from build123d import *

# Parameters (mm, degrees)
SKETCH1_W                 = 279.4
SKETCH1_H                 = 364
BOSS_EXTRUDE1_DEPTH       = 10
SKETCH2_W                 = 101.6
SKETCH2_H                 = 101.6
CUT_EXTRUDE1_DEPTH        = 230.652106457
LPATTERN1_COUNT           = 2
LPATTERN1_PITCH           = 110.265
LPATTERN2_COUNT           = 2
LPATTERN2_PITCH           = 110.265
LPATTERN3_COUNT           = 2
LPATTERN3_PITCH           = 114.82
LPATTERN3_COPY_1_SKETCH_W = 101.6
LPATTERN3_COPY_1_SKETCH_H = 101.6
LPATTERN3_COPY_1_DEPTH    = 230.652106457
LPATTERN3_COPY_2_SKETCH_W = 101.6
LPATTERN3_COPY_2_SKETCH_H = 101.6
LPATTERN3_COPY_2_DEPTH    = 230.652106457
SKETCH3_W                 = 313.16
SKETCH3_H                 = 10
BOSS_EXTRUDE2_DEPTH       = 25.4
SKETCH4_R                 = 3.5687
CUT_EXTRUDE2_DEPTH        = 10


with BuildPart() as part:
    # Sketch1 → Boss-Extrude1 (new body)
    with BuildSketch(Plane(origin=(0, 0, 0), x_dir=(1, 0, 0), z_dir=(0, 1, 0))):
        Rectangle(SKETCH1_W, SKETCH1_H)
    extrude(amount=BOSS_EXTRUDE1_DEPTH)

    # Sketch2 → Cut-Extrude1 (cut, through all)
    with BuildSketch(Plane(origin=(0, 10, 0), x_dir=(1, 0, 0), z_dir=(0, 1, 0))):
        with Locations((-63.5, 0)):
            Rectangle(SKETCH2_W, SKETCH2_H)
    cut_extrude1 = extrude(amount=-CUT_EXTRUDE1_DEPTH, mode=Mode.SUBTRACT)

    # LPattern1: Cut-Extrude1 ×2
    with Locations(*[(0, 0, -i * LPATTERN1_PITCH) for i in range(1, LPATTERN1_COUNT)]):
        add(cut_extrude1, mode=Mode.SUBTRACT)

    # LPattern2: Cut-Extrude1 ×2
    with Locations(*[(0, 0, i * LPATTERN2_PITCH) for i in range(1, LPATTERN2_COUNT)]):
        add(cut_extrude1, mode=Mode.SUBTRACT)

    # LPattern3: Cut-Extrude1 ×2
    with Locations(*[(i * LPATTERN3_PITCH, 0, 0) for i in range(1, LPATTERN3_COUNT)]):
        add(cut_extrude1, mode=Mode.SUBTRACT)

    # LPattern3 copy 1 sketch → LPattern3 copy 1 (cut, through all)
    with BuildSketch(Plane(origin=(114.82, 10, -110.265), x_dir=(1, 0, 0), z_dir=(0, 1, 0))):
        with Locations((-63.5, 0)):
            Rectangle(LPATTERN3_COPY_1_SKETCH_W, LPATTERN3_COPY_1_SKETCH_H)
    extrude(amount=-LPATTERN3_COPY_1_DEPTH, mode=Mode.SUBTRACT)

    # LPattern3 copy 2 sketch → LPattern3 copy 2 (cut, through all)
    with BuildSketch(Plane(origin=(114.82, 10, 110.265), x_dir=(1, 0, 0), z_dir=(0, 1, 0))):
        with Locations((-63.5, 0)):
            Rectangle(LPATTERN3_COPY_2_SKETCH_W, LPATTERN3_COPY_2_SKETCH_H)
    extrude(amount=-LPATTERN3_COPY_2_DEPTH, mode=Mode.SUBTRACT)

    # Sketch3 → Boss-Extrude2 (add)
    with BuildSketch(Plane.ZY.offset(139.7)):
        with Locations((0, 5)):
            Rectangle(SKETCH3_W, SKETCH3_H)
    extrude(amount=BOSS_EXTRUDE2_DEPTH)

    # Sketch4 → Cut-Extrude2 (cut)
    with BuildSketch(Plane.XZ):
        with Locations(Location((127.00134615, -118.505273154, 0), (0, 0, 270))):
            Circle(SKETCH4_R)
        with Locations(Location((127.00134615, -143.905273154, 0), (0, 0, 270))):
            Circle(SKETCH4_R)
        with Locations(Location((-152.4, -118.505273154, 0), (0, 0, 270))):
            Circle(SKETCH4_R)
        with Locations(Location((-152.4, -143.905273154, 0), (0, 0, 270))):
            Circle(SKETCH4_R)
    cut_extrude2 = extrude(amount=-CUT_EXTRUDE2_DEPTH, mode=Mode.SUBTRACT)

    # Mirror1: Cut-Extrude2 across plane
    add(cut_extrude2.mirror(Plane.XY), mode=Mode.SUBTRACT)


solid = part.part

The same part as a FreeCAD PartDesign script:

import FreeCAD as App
import Part
import Sketcher
Q = App.Units.Quantity

doc = App.newDocument("Part")
params = doc.addObject("Spreadsheet::Sheet", "Params")
for row, (alias, value) in enumerate([
    ("sketch1_width", "11 in"),
    ("pad1_length", "10 mm"),
    ("sketch2_width", "4 in"),
    ("linearpattern_pitch", "110.265 mm"),
    ("linearpattern2_pitch", "110.265 mm"),
    ("linearpattern3_pitch", "114.82 mm"),
    ("sketch3_width", "4 in"),
    ("sketch4_width", "4 in"),
    ("pad2_length", "1 in"),
    ("sketch6_diameter", "0.281 in"),
    ("pocket4_length", "10 mm"),
], start=1):
    params.set(f"A{row}", alias)
    params.set(f"B{row}", "=" + value)
    params.setAlias(f"B{row}", alias)

body = doc.addObject("PartDesign::Body", "Body")

sketch1 = body.newObject("Sketcher::SketchObject", "Sketch")
sketch1.AttachmentSupport = (doc.getObject("XZ_Plane"), [""])
sketch1.MapMode = "FlatFace"
sketch1.addGeometry([
    Part.LineSegment(App.Vector(-140, -182, 0), App.Vector(-140, 182, 0)),
    Part.LineSegment(App.Vector(-140, 182, 0), App.Vector(140, 182, 0)),
    Part.LineSegment(App.Vector(140, 182, 0), App.Vector(140, -182, 0)),
    Part.LineSegment(App.Vector(140, -182, 0), App.Vector(-140, -182, 0)),
], False)
sketch1.addConstraint([
    Sketcher.Constraint("Coincident", 0, 2, 1, 1),
    Sketcher.Constraint("Coincident", 1, 2, 2, 1),
    Sketcher.Constraint("Coincident", 2, 2, 3, 1),
    Sketcher.Constraint("Coincident", 3, 2, 0, 1),
    Sketcher.Constraint("Vertical", 0),
    Sketcher.Constraint("Horizontal", 1),
    Sketcher.Constraint("Vertical", 2),
    Sketcher.Constraint("Horizontal", 3),
    Sketcher.Constraint("Symmetric", 0, 2, 2, 2, -1, 1),
    Sketcher.Constraint("DistanceX", 1, 1, 1, 2, Q("11 in")),
    Sketcher.Constraint("DistanceY", 0, 1, 0, 2, 364.0),
])
sketch1.setExpression("Constraints[9]", "Params.sketch1_width")
pad1 = body.newObject("PartDesign::Pad", "Pad")
pad1.Profile = sketch1
pad1.setExpression("Length", "Params.pad1_length")
pad1.Reversed = True

sketch2 = body.newObject("Sketcher::SketchObject", "Sketch001")
sketch2.AttachmentSupport = (doc.getObject("XZ_Plane"), [""])
sketch2.MapMode = "FlatFace"
sketch2.AttachmentOffset = App.Placement(App.Vector(0, 0, -10), App.Rotation())
sketch2.addGeometry([
    Part.LineSegment(App.Vector(-114, -51, 0), App.Vector(-114, 51, 0)),
    Part.LineSegment(App.Vector(-114, 51, 0), App.Vector(-13, 51, 0)),
    Part.LineSegment(App.Vector(-13, 51, 0), App.Vector(-13, -51, 0)),
    Part.LineSegment(App.Vector(-13, -51, 0), App.Vector(-114, -51, 0)),
], False)
sketch2.addConstraint([
    Sketcher.Constraint("Coincident", 0, 2, 1, 1),
    Sketcher.Constraint("Coincident", 1, 2, 2, 1),
    Sketcher.Constraint("Coincident", 2, 2, 3, 1),
    Sketcher.Constraint("Coincident", 3, 2, 0, 1),
    Sketcher.Constraint("Vertical", 0),
    Sketcher.Constraint("Horizontal", 1),
    Sketcher.Constraint("Vertical", 2),
    Sketcher.Constraint("Horizontal", 3),
    Sketcher.Constraint("Equal", 3, 0),
    Sketcher.Constraint("DistanceX", 1, 1, 1, 2, Q("4 in")),
    Sketcher.Constraint("DistanceY", -1, 1, 0, 2, Q("2 in")),
    Sketcher.Constraint("DistanceX", 0, 2, -1, 1, Q("4.5 in")),
])
sketch2.setExpression("Constraints[9]", "Params.sketch2_width")
pocket1 = body.newObject("PartDesign::Pocket", "Pocket")
pocket1.Profile = sketch2
pocket1.Type = "ThroughAll"
pocket1.Reversed = True
doc.recompute()

linearpattern = body.newObject("PartDesign::LinearPattern", "LinearPattern")
linearpattern.Originals = [pocket1]
linearpattern.Direction = (doc.getObject("Z_Axis"), [""])
linearpattern.Mode = "offset"
linearpattern.setExpression("Offset", "Params.linearpattern_pitch")
linearpattern.Occurrences = 2
linearpattern.Reversed = True
body.Tip = linearpattern
doc.recompute()

linearpattern2 = body.newObject("PartDesign::LinearPattern", "LinearPattern001")
linearpattern2.Originals = [pocket1]
linearpattern2.Direction = (doc.getObject("Z_Axis"), [""])
linearpattern2.Mode = "offset"
linearpattern2.setExpression("Offset", "Params.linearpattern2_pitch")
linearpattern2.Occurrences = 2
body.Tip = linearpattern2
doc.recompute()

linearpattern3 = body.newObject("PartDesign::LinearPattern", "LinearPattern002")
linearpattern3.Originals = [pocket1]
linearpattern3.Direction = (doc.getObject("X_Axis"), [""])
linearpattern3.Mode = "offset"
linearpattern3.setExpression("Offset", "Params.linearpattern3_pitch")
linearpattern3.Occurrences = 2
body.Tip = linearpattern3

sketch3 = body.newObject("Sketcher::SketchObject", "Sketch002")
sketch3.AttachmentSupport = (doc.getObject("XZ_Plane"), [""])
sketch3.MapMode = "FlatFace"
sketch3.AttachmentOffset = App.Placement(App.Vector(0, 0, -10), App.Rotation())
sketch3.addGeometry([
    Part.LineSegment(App.Vector(1, -161, 0), App.Vector(1, -59, 0)),
    Part.LineSegment(App.Vector(1, -59, 0), App.Vector(102, -59, 0)),
    Part.LineSegment(App.Vector(102, -59, 0), App.Vector(102, -161, 0)),
    Part.LineSegment(App.Vector(102, -161, 0), App.Vector(1, -161, 0)),
], False)
sketch3.addConstraint([
    Sketcher.Constraint("Coincident", 0, 2, 1, 1),
    Sketcher.Constraint("Coincident", 1, 2, 2, 1),
    Sketcher.Constraint("Coincident", 2, 2, 3, 1),
    Sketcher.Constraint("Coincident", 3, 2, 0, 1),
    Sketcher.Constraint("Vertical", 0),
    Sketcher.Constraint("Horizontal", 1),
    Sketcher.Constraint("Vertical", 2),
    Sketcher.Constraint("Horizontal", 3),
    Sketcher.Constraint("Equal", 3, 0),
    Sketcher.Constraint("DistanceX", 1, 1, 1, 2, Q("4 in")),
    Sketcher.Constraint("DistanceX", -1, 1, 0, 2, 0.52),
    Sketcher.Constraint("DistanceY", 0, 2, -1, 1, 59.465),
])
sketch3.setExpression("Constraints[9]", "Params.sketch3_width")
pocket2 = body.newObject("PartDesign::Pocket", "Pocket001")
pocket2.Profile = sketch3
pocket2.Type = "ThroughAll"
pocket2.Reversed = True

sketch4 = body.newObject("Sketcher::SketchObject", "Sketch003")
sketch4.AttachmentSupport = (doc.getObject("XZ_Plane"), [""])
sketch4.MapMode = "FlatFace"
sketch4.AttachmentOffset = App.Placement(App.Vector(0, 0, -10), App.Rotation())
sketch4.addGeometry([
    Part.LineSegment(App.Vector(1, 59, 0), App.Vector(1, 161, 0)),
    Part.LineSegment(App.Vector(1, 161, 0), App.Vector(102, 161, 0)),
    Part.LineSegment(App.Vector(102, 161, 0), App.Vector(102, 59, 0)),
    Part.LineSegment(App.Vector(102, 59, 0), App.Vector(1, 59, 0)),
], False)
sketch4.addConstraint([
    Sketcher.Constraint("Coincident", 0, 2, 1, 1),
    Sketcher.Constraint("Coincident", 1, 2, 2, 1),
    Sketcher.Constraint("Coincident", 2, 2, 3, 1),
    Sketcher.Constraint("Coincident", 3, 2, 0, 1),
    Sketcher.Constraint("Vertical", 0),
    Sketcher.Constraint("Horizontal", 1),
    Sketcher.Constraint("Vertical", 2),
    Sketcher.Constraint("Horizontal", 3),
    Sketcher.Constraint("Equal", 3, 0),
    Sketcher.Constraint("DistanceX", 1, 1, 1, 2, Q("4 in")),
    Sketcher.Constraint("DistanceX", -1, 1, 0, 2, 0.52),
    Sketcher.Constraint("DistanceY", -1, 1, 0, 2, 161.065),
])
sketch4.setExpression("Constraints[9]", "Params.sketch4_width")
pocket3 = body.newObject("PartDesign::Pocket", "Pocket002")
pocket3.Profile = sketch4
pocket3.Type = "ThroughAll"
pocket3.Reversed = True

sketch5 = body.newObject("Sketcher::SketchObject", "Sketch004")
sketch5.AttachmentSupport = (doc.getObject("YZ_Plane"), [""])
sketch5.MapMode = "FlatFace"
sketch5.AttachmentOffset = App.Placement(App.Vector(0, 0, -5.5 * 25.4), App.Rotation())
sketch5.addGeometry([
    Part.LineSegment(App.Vector(10, -157, 0), App.Vector(0, -157, 0)),
    Part.LineSegment(App.Vector(0, -157, 0), App.Vector(0, 157, 0)),
    Part.LineSegment(App.Vector(0, 157, 0), App.Vector(10, 157, 0)),
    Part.LineSegment(App.Vector(10, 157, 0), App.Vector(10, -157, 0)),
], False)
sketch5.addConstraint([
    Sketcher.Constraint("Coincident", 0, 2, 1, 1),
    Sketcher.Constraint("Coincident", 1, 2, 2, 1),
    Sketcher.Constraint("Coincident", 2, 2, 3, 1),
    Sketcher.Constraint("Coincident", 3, 2, 0, 1),
    Sketcher.Constraint("Horizontal", 0),
    Sketcher.Constraint("Vertical", 1),
    Sketcher.Constraint("Horizontal", 2),
    Sketcher.Constraint("Vertical", 3),
    Sketcher.Constraint("Symmetric", 0, 2, 1, 2, -1, 1),
    Sketcher.Constraint("DistanceX", 0, 2, 0, 1, 10.0),
    Sketcher.Constraint("DistanceY", 1, 1, 1, 2, 313.16),
])
pad2 = body.newObject("PartDesign::Pad", "Pad001")
pad2.Profile = sketch5
pad2.setExpression("Length", "Params.pad2_length")
pad2.Reversed = True

sketch6 = body.newObject("Sketcher::SketchObject", "Sketch005")
sketch6.AttachmentSupport = (doc.getObject("XZ_Plane"), [""])
sketch6.MapMode = "FlatFace"
sketch6.addGeometry([
    Part.Circle(App.Vector(127, -118.5, 0), App.Vector(0, 0, 1), 3.6),
    Part.Circle(App.Vector(127, -143.9, 0), App.Vector(0, 0, 1), 3.6),
    Part.Circle(App.Vector(-152.4, -118.5, 0), App.Vector(0, 0, 1), 3.6),
    Part.Circle(App.Vector(-152.4, -143.9, 0), App.Vector(0, 0, 1), 3.6),
], False)
sketch6.addConstraint([
    Sketcher.Constraint("Equal", 0, 1),
    Sketcher.Constraint("Equal", 1, 2),
    Sketcher.Constraint("Equal", 2, 3),
    Sketcher.Constraint("Horizontal", 0, 3, 2, 3),
    Sketcher.Constraint("Horizontal", 1, 3, 3, 3),
    Sketcher.Constraint("Vertical", 0, 3, 1, 3),
    Sketcher.Constraint("Vertical", 2, 3, 3, 3),
    Sketcher.Constraint("Diameter", 0, Q("0.281 in")),
    Sketcher.Constraint("DistanceX", 2, 3, -1, 1, Q("6 in")),
    Sketcher.Constraint("DistanceY", 1, 3, 0, 3, Q("1 in")),
    Sketcher.Constraint("DistanceX", -1, 1, 0, 3, 127.001346),
    Sketcher.Constraint("DistanceY", 0, 3, -1, 1, 118.505273),
])
sketch6.setExpression("Constraints[7]", "Params.sketch6_diameter")
pocket4 = body.newObject("PartDesign::Pocket", "Pocket003")
pocket4.Profile = sketch6
pocket4.setExpression("Length", "Params.pocket4_length")
doc.recompute()

mirrored = body.newObject("PartDesign::Mirrored", "Mirrored")
mirrored.Originals = [pocket4]
mirrored.MirrorPlane = (doc.getObject("XY_Plane"), [""])
body.Tip = mirrored

doc.recompute()
